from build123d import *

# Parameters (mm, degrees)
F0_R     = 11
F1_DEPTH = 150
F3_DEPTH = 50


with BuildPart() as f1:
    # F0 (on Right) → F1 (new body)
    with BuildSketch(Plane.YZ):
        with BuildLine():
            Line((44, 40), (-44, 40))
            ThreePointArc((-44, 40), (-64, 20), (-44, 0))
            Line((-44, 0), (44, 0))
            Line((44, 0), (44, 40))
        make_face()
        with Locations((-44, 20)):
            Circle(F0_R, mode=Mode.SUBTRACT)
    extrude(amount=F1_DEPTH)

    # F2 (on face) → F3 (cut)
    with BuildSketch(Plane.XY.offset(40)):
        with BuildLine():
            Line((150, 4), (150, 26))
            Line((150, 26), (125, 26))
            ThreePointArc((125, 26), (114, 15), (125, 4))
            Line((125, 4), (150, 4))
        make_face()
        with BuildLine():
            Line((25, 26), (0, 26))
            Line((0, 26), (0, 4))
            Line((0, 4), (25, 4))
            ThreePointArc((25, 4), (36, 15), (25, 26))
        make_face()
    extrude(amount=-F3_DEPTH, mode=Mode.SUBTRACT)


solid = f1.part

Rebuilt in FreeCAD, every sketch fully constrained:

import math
import FreeCAD as App
import Part
import Sketcher

V = App.Vector

doc = App.newDocument("Part")
body = doc.addObject("PartDesign::Body", "Body")

sketch1 = body.newObject("Sketcher::SketchObject", "Sketch")
sketch1.AttachmentSupport = (doc.getObject("YZ_Plane"), [""])
sketch1.MapMode = "FlatFace"
sketch1.addGeometry([
    Part.LineSegment(V(44, 40, 0), V(-44, 40, 0)),
    Part.ArcOfCircle(Part.Circle(V(-44, 20, 0), V(0, 0, 1), 20), math.radians(90), math.radians(270)),
    Part.LineSegment(V(-44, 0, 0), V(44, 0, 0)),
    Part.LineSegment(V(44, 0, 0), V(44, 40, 0)),
    Part.Circle(V(-44, 20, 0), V(0, 0, 1), 11),
], False)
sketch1.addConstraint([
    Sketcher.Constraint("Tangent", 0, 2, 1, 1),
    Sketcher.Constraint("Tangent", 1, 2, 2, 1),
    Sketcher.Constraint("Coincident", 2, 2, 3, 1),
    Sketcher.Constraint("Coincident", 3, 2, 0, 1),
    Sketcher.Constraint("Horizontal", 0),
    Sketcher.Constraint("Horizontal", 2),
    Sketcher.Constraint("Vertical", 3),
    Sketcher.Constraint("Coincident", 4, 3, 1, 3),
    Sketcher.Constraint("Symmetric", 1, 2, 2, 2, -1, 1),
    Sketcher.Constraint("Diameter", 4, 22.0),
    Sketcher.Constraint("Radius", 1, 20.0),
    Sketcher.Constraint("DistanceX", 0, 2, 0, 1, 88.0),
])
pad1 = body.newObject("PartDesign::Pad", "Pad")
pad1.Profile = sketch1
pad1.Length = 150

sketch2 = body.newObject("Sketcher::SketchObject", "Sketch001")
sketch2.AttachmentSupport = (doc.getObject("XY_Plane"), [""])
sketch2.MapMode = "FlatFace"
sketch2.AttachmentOffset = App.Placement(V(0, 0, 40), App.Rotation())
sketch2.addGeometry([
    Part.LineSegment(V(150, 4, 0), V(150, 26, 0)),
    Part.LineSegment(V(150, 26, 0), V(125, 26, 0)),
    Part.ArcOfCircle(Part.Circle(V(125, 15, 0), V(0, 0, 1), 11), math.radians(90), math.radians(270)),
    Part.LineSegment(V(125, 4, 0), V(150, 4, 0)),
    Part.LineSegment(V(25, 26, 0), V(0, 26, 0)),
    Part.LineSegment(V(0, 26, 0), V(0, 4, 0)),
    Part.LineSegment(V(0, 4, 0), V(25, 4, 0)),
    Part.ArcOfCircle(Part.Circle(V(25, 15, 0), V(0, 0, 1), 11), math.radians(-90), math.radians(90)),
], False)
sketch2.addConstraint([
    Sketcher.Constraint("Coincident", 0, 2, 1, 1),
    Sketcher.Constraint("Tangent", 1, 2, 2, 1),
    Sketcher.Constraint("Tangent", 2, 2, 3, 1),
    Sketcher.Constraint("Coincident", 3, 2, 0, 1),
    Sketcher.Constraint("Coincident", 4, 2, 5, 1),
    Sketcher.Constraint("Coincident", 5, 2, 6, 1),
    Sketcher.Constraint("Tangent", 6, 2, 7, 1),
    Sketcher.Constraint("Tangent", 7, 2, 4, 1),
    Sketcher.Constraint("Vertical", 0),
    Sketcher.Constraint("Horizontal", 1),
    Sketcher.Constraint("Horizontal", 3),
    Sketcher.Constraint("Horizontal", 4),
    Sketcher.Constraint("Vertical", 5),
    Sketcher.Constraint("Horizontal", 6),
    Sketcher.Constraint("Equal", 2, 7),
    Sketcher.Constraint("PointOnObject", 4, 2, -2),
    Sketcher.Constraint("Horizontal", 2, 3, 7, 3),
    Sketcher.Constraint("Equal", 3, 4),
    Sketcher.Constraint("Radius", 2, 11.0),
    Sketcher.Constraint("DistanceX", 1, 2, 1, 1, 25.0),
    Sketcher.Constraint("DistanceX", -1, 1, 2, 3, 125.0),
    Sketcher.Constraint("DistanceY", -1, 1, 2, 3, 15.0),
])
pocket1 = body.newObject("PartDesign::Pocket", "Pocket")
pocket1.Profile = sketch2
pocket1.Length = 50

doc.recompute()
